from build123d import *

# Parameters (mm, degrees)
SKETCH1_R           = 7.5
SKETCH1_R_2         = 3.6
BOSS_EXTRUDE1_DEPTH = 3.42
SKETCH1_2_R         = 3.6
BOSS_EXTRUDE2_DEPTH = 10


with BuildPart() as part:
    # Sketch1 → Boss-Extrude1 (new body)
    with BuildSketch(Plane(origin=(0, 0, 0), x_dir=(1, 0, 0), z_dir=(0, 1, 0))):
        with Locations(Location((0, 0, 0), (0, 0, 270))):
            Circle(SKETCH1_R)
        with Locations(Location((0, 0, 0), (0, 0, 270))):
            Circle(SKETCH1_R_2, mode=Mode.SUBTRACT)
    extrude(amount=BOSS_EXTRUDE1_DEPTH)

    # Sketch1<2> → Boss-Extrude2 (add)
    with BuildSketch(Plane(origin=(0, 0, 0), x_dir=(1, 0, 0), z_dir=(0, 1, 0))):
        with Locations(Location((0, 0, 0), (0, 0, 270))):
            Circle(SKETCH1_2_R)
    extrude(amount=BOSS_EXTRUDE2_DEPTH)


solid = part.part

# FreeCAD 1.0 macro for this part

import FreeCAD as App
import Part
import Sketcher
Q = App.Units.Quantity

doc = App.newDocument("Part")
body = doc.addObject("PartDesign::Body", "Body")

# Sketch on XZ plane
sketch1 = doc.addObject("Sketcher::SketchObject", "Sketch")
body.addObject(sketch1)
sketch1.AttachmentSupport = (doc.XZ_Plane, [""])
sketch1.MapMode = "FlatFace"
sketch1.addGeometry(Part.Circle(App.Vector(0, 0, 0), App.Vector(0, 0, 1), 7.5), False)
sketch1.addGeometry(Part.Circle(App.Vector(0, 0, 0), App.Vector(0, 0, 1), 3.6), False)
sketch1.addConstraint(Sketcher.Constraint("Coincident", 0, 3, -1, 1))
sketch1.addConstraint(Sketcher.Constraint("Coincident", 1, 3, -1, 1))
sketch1.addConstraint(Sketcher.Constraint("Diameter", 0, Q("15 mm")))
sketch1.addConstraint(Sketcher.Constraint("Diameter", 1, Q("7.2 mm")))
pad1 = doc.addObject("PartDesign::Pad", "Pad")
body.addObject(pad1)
pad1.Profile = sketch1
pad1.Length = 3.42
pad1.Reversed = True

# Sketch on XZ plane
sketch2 = doc.addObject("Sketcher::SketchObject", "Sketch001")
body.addObject(sketch2)
sketch2.AttachmentSupport = (doc.XZ_Plane, [""])
sketch2.MapMode = "FlatFace"
sketch2.addGeometry(Part.Circle(App.Vector(0, 0, 0), App.Vector(0, 0, 1), 3.6), False)
sketch2.addConstraint(Sketcher.Constraint("Coincident", 0, 3, -1, 1))
sketch2.addConstraint(Sketcher.Constraint("Diameter", 0, Q("7.2 mm")))
pad2 = doc.addObject("PartDesign::Pad", "Pad001")
body.addObject(pad2)
pad2.Profile = sketch2
pad2.Length = 10
pad2.Reversed = True

doc.recompute()
